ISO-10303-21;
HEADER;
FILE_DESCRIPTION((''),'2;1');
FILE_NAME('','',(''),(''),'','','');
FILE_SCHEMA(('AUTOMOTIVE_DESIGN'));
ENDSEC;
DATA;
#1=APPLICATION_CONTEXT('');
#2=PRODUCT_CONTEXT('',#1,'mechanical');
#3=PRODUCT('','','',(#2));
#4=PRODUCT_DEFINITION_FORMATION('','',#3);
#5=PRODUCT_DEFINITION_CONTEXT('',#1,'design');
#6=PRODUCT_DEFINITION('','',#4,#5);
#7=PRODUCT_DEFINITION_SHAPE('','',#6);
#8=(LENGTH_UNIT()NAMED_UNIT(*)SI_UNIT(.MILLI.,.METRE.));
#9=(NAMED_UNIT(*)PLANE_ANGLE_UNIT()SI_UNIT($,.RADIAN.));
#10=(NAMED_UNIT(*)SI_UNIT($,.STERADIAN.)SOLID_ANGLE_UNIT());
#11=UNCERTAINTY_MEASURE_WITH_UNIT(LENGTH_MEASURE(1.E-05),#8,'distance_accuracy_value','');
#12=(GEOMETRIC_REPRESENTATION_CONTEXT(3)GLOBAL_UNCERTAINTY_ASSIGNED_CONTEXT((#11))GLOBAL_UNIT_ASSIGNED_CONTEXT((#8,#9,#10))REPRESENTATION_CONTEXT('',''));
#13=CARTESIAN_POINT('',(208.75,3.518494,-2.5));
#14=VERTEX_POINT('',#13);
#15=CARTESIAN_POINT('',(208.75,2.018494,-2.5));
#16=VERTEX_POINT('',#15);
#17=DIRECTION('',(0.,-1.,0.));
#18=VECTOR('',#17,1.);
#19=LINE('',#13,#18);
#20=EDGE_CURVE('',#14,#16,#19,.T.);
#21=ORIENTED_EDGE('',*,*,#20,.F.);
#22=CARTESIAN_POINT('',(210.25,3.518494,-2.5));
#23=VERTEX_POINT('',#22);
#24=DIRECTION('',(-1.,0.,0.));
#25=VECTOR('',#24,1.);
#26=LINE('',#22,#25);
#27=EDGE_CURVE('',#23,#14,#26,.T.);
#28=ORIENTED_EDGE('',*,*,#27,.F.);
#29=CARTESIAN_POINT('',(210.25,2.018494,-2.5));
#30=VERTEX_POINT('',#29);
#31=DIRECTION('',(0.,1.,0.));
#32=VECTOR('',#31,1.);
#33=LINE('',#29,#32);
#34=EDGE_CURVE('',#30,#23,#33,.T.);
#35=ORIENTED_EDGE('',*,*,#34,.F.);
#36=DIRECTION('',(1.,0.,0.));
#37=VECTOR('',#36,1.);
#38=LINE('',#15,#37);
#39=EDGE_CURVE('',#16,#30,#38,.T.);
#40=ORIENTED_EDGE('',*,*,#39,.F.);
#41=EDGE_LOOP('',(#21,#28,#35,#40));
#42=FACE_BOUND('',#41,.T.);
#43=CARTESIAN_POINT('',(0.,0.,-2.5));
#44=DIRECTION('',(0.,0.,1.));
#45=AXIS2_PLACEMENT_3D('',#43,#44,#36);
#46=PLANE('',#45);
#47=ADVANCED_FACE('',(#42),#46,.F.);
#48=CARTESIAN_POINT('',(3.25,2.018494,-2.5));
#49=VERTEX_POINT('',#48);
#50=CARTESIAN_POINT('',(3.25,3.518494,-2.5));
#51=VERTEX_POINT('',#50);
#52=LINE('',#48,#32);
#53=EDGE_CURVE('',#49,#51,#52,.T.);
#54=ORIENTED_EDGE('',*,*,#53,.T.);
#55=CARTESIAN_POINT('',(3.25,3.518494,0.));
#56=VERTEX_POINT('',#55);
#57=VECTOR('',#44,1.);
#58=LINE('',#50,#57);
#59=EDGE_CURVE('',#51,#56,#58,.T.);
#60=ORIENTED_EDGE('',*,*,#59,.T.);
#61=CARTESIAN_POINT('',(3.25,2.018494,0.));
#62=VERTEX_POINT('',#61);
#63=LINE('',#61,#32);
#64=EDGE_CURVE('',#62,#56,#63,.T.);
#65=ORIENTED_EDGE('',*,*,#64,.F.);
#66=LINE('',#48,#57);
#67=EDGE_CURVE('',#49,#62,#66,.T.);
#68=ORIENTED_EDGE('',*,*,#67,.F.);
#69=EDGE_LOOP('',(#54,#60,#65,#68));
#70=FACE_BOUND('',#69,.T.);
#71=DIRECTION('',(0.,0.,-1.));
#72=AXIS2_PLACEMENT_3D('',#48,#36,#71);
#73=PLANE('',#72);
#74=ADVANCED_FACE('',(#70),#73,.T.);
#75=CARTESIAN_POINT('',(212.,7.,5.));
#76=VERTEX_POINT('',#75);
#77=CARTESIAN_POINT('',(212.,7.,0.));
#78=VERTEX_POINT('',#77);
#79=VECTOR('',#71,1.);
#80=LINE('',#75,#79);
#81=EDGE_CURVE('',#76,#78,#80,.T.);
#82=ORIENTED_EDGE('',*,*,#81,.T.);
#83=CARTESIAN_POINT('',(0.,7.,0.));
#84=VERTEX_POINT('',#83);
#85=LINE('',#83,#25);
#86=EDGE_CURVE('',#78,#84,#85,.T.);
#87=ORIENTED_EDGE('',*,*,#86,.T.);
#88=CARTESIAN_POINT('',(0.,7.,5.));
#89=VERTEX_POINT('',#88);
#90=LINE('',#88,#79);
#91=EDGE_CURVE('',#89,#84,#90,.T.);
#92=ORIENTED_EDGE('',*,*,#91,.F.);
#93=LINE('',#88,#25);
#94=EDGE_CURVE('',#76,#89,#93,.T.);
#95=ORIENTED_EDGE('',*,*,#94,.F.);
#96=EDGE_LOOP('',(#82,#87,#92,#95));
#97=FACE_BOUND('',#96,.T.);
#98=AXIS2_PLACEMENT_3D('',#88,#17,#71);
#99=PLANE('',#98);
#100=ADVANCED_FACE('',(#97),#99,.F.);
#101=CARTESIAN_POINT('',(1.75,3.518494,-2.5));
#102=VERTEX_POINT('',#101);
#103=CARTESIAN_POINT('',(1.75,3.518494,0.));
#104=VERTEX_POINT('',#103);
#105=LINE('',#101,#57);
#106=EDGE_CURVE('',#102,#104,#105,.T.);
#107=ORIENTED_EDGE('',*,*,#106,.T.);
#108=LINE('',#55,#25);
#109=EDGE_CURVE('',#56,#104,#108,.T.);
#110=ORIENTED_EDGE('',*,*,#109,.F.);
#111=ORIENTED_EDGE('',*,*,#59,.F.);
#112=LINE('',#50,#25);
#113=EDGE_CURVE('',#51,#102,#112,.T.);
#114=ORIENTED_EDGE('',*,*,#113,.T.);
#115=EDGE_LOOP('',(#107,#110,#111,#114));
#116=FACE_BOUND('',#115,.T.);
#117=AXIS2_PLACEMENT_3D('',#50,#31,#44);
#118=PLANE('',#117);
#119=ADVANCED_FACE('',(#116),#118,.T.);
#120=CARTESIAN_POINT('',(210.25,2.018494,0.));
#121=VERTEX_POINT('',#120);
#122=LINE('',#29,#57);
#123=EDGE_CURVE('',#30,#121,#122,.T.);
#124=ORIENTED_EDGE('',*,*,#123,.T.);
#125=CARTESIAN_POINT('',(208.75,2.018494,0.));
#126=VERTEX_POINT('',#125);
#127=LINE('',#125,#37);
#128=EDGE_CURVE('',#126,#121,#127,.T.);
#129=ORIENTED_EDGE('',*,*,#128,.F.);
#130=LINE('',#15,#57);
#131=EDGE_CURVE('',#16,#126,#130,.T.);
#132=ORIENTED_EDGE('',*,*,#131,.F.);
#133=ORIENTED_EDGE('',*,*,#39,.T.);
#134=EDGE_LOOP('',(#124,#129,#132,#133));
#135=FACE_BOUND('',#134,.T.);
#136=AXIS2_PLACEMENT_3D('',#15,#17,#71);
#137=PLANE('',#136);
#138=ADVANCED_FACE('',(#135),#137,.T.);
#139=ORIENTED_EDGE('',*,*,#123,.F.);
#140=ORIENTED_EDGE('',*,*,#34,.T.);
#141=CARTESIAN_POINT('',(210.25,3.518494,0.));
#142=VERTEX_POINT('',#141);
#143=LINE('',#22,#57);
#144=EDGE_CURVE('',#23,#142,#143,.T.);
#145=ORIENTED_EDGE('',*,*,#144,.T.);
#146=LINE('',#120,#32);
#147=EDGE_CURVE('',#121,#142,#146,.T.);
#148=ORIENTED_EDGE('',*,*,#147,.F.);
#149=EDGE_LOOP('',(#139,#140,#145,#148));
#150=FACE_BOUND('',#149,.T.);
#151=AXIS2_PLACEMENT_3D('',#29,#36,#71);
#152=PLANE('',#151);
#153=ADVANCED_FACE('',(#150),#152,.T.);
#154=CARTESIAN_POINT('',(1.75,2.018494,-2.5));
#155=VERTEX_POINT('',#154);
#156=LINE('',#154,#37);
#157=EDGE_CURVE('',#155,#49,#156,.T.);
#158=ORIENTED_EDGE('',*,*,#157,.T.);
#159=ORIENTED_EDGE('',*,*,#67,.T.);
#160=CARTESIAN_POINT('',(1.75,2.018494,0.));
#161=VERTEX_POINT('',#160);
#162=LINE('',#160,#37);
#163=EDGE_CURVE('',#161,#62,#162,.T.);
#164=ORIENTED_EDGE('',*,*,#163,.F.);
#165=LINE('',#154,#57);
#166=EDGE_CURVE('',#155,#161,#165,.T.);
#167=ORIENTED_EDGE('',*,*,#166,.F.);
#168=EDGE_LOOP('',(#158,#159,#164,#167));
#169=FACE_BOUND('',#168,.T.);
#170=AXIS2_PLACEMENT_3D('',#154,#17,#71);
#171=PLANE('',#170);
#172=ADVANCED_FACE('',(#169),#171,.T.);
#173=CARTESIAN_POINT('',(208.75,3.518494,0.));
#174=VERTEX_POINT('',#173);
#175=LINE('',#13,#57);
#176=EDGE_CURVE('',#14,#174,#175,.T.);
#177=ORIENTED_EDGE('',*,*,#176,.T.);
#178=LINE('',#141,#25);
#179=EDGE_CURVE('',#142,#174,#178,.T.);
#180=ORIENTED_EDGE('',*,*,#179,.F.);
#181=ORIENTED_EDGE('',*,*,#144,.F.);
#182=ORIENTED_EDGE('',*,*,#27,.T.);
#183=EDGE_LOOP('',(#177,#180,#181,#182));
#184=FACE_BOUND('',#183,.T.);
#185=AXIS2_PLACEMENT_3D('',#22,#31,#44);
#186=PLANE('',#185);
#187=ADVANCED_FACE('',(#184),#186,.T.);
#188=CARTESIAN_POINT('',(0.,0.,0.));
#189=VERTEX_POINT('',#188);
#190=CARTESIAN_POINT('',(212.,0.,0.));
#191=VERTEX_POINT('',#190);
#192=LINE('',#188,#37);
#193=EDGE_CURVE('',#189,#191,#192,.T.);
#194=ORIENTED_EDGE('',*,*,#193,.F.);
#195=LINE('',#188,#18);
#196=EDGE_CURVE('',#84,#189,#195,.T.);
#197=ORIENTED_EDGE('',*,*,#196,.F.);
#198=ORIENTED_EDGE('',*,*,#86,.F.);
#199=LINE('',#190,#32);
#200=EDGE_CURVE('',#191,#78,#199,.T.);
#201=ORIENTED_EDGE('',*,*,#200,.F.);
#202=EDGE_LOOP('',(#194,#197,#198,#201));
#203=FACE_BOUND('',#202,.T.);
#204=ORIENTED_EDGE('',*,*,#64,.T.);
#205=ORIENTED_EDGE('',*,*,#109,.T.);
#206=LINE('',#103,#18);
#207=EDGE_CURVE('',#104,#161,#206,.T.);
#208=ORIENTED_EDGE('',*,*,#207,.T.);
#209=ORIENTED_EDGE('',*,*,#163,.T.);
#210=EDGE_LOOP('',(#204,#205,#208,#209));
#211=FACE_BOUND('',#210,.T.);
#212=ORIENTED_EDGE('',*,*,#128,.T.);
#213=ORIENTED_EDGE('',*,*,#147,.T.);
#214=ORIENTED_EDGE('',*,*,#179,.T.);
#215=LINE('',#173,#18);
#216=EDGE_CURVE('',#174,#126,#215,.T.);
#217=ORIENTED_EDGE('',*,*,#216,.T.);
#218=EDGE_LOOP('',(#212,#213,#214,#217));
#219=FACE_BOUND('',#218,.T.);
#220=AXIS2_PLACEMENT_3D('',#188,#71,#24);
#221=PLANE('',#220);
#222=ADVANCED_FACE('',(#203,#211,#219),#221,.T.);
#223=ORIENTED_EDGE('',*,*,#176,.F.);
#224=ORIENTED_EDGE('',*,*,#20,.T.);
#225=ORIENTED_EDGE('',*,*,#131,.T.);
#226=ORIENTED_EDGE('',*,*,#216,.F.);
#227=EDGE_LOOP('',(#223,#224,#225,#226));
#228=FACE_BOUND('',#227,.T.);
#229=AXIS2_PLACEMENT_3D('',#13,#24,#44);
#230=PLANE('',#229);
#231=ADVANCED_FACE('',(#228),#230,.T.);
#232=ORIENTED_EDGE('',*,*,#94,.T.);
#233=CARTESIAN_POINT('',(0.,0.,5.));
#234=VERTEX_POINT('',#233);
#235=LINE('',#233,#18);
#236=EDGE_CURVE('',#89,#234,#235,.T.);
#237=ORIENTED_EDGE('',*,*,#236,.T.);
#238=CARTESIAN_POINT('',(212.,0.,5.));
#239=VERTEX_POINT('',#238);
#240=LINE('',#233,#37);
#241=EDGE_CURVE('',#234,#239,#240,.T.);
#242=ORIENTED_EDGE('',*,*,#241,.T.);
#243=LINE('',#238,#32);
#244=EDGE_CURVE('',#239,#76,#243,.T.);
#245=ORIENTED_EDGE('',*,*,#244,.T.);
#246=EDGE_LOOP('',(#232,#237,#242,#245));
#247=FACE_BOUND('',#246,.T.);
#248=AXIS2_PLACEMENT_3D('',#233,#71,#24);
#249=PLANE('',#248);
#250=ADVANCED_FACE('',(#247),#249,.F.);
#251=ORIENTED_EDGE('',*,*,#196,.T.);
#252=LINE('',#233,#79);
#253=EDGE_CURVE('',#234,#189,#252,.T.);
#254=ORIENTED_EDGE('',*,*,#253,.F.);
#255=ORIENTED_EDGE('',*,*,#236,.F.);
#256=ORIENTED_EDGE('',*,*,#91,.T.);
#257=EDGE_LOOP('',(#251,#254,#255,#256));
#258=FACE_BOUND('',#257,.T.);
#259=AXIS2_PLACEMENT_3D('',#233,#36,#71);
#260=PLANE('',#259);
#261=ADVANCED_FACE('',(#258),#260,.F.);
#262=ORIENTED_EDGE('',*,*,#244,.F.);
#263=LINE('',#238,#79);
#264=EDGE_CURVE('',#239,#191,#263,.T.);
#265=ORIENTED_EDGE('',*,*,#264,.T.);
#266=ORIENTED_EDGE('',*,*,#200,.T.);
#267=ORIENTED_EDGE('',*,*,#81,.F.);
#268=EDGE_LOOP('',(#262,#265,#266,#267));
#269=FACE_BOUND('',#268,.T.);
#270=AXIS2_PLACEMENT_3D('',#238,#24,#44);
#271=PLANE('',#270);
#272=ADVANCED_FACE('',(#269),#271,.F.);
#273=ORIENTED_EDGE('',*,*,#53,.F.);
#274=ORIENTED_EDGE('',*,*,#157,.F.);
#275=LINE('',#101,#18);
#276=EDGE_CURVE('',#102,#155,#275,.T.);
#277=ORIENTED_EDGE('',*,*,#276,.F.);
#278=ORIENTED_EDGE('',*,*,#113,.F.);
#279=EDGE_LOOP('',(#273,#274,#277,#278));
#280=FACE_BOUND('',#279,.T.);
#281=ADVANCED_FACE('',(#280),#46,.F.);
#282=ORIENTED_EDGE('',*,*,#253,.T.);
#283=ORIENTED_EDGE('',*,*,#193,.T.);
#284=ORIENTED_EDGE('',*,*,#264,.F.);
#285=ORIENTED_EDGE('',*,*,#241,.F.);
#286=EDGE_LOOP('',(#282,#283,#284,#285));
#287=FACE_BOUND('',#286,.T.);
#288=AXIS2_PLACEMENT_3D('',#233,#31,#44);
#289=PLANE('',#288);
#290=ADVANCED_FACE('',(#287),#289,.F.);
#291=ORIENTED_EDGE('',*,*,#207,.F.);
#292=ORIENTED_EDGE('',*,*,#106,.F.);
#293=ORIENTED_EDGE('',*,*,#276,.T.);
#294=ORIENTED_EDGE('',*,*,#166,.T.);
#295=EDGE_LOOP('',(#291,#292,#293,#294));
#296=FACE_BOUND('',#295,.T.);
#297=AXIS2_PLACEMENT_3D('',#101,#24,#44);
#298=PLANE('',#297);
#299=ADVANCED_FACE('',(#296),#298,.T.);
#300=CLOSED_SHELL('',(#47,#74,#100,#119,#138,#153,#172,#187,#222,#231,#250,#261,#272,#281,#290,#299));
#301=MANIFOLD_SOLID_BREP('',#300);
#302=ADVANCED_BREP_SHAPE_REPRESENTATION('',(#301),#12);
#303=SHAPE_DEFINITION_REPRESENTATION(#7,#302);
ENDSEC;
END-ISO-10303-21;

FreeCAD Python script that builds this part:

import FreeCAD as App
import Part
import Sketcher


def add_polygon(sketch, points):
    """Adds a closed chain of lines whose ends are joined by coincident constraints."""
    first, n = sketch.GeometryCount, len(points)
    for a, b in zip(points, points[1:] + points[:1]):
        sketch.addGeometry(Part.LineSegment(App.Vector(*a, 0), App.Vector(*b, 0)), False)
    for i in range(n):
        sketch.addConstraint(Sketcher.Constraint("Coincident", first + i, 2, first + (i + 1) % n, 1))

doc = App.newDocument("Part")
body = doc.addObject("PartDesign::Body", "Body")

# Sketch on XY plane
sketch1 = body.newObject("Sketcher::SketchObject", "Sketch")
sketch1.AttachmentSupport = (doc.getObject("XY_Plane"), [""])
sketch1.MapMode = "FlatFace"
add_polygon(sketch1, [(0, 7), (0, 0), (212, 0), (212, 7)])  # lines 0-3
sketch1.addConstraint(Sketcher.Constraint("Vertical", 0))
sketch1.addConstraint(Sketcher.Constraint("Horizontal", 1))
sketch1.addConstraint(Sketcher.Constraint("Vertical", 2))
sketch1.addConstraint(Sketcher.Constraint("Horizontal", 3))
sketch1.addConstraint(Sketcher.Constraint("Coincident", 0, 2, -1, 1))
sketch1.addConstraint(Sketcher.Constraint("DistanceX", 1, 1, 1, 2, 212.0))
sketch1.addConstraint(Sketcher.Constraint("DistanceY", 0, 2, 0, 1, 7.0))
pad1 = body.newObject("PartDesign::Pad", "Pad")
pad1.Profile = sketch1
pad1.Length = 5

# Sketch on XY plane
sketch2 = body.newObject("Sketcher::SketchObject", "Sketch001")
sketch2.AttachmentSupport = (doc.getObject("XY_Plane"), [""])
sketch2.MapMode = "FlatFace"
add_polygon(sketch2, [(3.2, 3.5), (3.2, 2), (1.8, 2), (1.8, 3.5)])  # lines 0-3
add_polygon(sketch2, [(210.2, 3.5), (210.2, 2), (208.8, 2), (208.8, 3.5)])  # lines 4-7
sketch2.addConstraint(Sketcher.Constraint("Vertical", 0))
sketch2.addConstraint(Sketcher.Constraint("Horizontal", 1))
sketch2.addConstraint(Sketcher.Constraint("Vertical", 2))
sketch2.addConstraint(Sketcher.Constraint("Horizontal", 3))
sketch2.addConstraint(Sketcher.Constraint("Vertical", 4))
sketch2.addConstraint(Sketcher.Constraint("Horizontal", 5))
sketch2.addConstraint(Sketcher.Constraint("Vertical", 6))
sketch2.addConstraint(Sketcher.Constraint("Horizontal", 7))
sketch2.addConstraint(Sketcher.Constraint("Horizontal", 1, 2, 4, 2))
sketch2.addConstraint(Sketcher.Constraint("Horizontal", 3, 2, 6, 2))
sketch2.addConstraint(Sketcher.Constraint("Equal", 3, 5))
sketch2.addConstraint(Sketcher.Constraint("Equal", 7, 0))
sketch2.addConstraint(Sketcher.Constraint("DistanceX", 1, 2, 1, 1, 1.5))
sketch2.addConstraint(Sketcher.Constraint("DistanceX", 0, 2, 4, 2, 207.0))
sketch2.addConstraint(Sketcher.Constraint("DistanceX", -1, 1, 0, 2, 3.25))
sketch2.addConstraint(Sketcher.Constraint("DistanceY", -1, 1, 0, 2, 2.018494))
pad2 = body.newObject("PartDesign::Pad", "Pad001")
pad2.Profile = sketch2
pad2.Length = 2.5
pad2.Reversed = True

doc.recompute()
